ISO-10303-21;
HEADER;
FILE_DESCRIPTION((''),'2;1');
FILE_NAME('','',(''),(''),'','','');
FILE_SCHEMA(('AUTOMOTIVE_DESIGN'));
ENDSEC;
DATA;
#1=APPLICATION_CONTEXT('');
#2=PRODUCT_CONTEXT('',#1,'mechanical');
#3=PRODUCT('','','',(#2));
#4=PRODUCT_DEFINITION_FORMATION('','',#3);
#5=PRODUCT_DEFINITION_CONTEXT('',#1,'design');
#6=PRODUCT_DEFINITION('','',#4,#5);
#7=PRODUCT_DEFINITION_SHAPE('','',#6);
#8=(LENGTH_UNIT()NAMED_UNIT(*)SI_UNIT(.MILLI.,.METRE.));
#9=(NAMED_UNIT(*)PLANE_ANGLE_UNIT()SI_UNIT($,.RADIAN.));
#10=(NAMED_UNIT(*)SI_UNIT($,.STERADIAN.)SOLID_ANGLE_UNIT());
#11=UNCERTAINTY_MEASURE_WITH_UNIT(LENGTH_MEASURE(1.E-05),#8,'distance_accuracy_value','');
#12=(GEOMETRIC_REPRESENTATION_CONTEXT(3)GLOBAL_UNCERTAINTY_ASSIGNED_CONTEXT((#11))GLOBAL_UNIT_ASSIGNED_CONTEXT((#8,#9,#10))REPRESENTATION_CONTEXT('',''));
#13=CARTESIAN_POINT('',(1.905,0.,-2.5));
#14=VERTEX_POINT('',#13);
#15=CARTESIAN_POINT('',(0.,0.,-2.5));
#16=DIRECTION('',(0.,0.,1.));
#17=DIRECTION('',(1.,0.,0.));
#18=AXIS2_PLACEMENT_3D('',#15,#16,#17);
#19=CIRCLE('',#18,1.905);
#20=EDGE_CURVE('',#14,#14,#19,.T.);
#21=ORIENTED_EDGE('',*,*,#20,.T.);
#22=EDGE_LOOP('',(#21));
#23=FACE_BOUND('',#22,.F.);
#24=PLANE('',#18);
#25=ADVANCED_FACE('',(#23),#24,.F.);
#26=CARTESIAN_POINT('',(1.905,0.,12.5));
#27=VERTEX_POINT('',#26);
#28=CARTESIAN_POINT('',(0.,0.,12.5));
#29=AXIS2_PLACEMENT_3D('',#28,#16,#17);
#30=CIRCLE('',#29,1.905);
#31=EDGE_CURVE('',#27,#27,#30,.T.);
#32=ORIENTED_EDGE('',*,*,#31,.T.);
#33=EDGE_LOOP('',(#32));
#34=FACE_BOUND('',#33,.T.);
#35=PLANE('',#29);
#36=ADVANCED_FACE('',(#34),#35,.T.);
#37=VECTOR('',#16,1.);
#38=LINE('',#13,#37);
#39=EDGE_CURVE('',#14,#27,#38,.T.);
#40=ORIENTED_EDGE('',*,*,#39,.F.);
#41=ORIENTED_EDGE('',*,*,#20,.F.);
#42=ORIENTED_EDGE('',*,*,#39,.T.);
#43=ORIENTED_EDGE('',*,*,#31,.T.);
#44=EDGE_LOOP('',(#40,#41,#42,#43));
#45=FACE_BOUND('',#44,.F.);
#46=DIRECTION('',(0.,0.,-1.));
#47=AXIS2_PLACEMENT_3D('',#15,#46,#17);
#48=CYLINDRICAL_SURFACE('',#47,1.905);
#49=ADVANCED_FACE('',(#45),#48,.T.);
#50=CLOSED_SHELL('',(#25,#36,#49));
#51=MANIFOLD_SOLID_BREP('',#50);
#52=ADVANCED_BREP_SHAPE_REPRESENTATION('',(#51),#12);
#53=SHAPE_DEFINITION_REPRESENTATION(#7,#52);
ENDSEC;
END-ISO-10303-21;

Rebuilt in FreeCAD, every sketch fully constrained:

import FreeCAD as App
import Part
import Sketcher

doc = App.newDocument("Part")
body = doc.addObject("PartDesign::Body", "Body")

sketch1 = doc.addObject("Sketcher::SketchObject", "Sketch")
body.addObject(sketch1)
sketch1.AttachmentSupport = (doc.XY_Plane, [""])
sketch1.MapMode = "FlatFace"
sketch1.AttachmentOffset = App.Placement(App.Vector(0, 0, -2.5), App.Rotation())
sketch1.addGeometry(Part.Circle(App.Vector(0, 0, 0), App.Vector(0, 0, 1), 1.905), False)
sketch1.addConstraint([
    Sketcher.Constraint("Coincident", 0, 3, -1, 1),
    Sketcher.Constraint("Diameter", 0, 3.81),
])
pad1 = doc.addObject("PartDesign::Pad", "Pad")
body.addObject(pad1)
pad1.Profile = sketch1
pad1.Length = 15

doc.recompute()
